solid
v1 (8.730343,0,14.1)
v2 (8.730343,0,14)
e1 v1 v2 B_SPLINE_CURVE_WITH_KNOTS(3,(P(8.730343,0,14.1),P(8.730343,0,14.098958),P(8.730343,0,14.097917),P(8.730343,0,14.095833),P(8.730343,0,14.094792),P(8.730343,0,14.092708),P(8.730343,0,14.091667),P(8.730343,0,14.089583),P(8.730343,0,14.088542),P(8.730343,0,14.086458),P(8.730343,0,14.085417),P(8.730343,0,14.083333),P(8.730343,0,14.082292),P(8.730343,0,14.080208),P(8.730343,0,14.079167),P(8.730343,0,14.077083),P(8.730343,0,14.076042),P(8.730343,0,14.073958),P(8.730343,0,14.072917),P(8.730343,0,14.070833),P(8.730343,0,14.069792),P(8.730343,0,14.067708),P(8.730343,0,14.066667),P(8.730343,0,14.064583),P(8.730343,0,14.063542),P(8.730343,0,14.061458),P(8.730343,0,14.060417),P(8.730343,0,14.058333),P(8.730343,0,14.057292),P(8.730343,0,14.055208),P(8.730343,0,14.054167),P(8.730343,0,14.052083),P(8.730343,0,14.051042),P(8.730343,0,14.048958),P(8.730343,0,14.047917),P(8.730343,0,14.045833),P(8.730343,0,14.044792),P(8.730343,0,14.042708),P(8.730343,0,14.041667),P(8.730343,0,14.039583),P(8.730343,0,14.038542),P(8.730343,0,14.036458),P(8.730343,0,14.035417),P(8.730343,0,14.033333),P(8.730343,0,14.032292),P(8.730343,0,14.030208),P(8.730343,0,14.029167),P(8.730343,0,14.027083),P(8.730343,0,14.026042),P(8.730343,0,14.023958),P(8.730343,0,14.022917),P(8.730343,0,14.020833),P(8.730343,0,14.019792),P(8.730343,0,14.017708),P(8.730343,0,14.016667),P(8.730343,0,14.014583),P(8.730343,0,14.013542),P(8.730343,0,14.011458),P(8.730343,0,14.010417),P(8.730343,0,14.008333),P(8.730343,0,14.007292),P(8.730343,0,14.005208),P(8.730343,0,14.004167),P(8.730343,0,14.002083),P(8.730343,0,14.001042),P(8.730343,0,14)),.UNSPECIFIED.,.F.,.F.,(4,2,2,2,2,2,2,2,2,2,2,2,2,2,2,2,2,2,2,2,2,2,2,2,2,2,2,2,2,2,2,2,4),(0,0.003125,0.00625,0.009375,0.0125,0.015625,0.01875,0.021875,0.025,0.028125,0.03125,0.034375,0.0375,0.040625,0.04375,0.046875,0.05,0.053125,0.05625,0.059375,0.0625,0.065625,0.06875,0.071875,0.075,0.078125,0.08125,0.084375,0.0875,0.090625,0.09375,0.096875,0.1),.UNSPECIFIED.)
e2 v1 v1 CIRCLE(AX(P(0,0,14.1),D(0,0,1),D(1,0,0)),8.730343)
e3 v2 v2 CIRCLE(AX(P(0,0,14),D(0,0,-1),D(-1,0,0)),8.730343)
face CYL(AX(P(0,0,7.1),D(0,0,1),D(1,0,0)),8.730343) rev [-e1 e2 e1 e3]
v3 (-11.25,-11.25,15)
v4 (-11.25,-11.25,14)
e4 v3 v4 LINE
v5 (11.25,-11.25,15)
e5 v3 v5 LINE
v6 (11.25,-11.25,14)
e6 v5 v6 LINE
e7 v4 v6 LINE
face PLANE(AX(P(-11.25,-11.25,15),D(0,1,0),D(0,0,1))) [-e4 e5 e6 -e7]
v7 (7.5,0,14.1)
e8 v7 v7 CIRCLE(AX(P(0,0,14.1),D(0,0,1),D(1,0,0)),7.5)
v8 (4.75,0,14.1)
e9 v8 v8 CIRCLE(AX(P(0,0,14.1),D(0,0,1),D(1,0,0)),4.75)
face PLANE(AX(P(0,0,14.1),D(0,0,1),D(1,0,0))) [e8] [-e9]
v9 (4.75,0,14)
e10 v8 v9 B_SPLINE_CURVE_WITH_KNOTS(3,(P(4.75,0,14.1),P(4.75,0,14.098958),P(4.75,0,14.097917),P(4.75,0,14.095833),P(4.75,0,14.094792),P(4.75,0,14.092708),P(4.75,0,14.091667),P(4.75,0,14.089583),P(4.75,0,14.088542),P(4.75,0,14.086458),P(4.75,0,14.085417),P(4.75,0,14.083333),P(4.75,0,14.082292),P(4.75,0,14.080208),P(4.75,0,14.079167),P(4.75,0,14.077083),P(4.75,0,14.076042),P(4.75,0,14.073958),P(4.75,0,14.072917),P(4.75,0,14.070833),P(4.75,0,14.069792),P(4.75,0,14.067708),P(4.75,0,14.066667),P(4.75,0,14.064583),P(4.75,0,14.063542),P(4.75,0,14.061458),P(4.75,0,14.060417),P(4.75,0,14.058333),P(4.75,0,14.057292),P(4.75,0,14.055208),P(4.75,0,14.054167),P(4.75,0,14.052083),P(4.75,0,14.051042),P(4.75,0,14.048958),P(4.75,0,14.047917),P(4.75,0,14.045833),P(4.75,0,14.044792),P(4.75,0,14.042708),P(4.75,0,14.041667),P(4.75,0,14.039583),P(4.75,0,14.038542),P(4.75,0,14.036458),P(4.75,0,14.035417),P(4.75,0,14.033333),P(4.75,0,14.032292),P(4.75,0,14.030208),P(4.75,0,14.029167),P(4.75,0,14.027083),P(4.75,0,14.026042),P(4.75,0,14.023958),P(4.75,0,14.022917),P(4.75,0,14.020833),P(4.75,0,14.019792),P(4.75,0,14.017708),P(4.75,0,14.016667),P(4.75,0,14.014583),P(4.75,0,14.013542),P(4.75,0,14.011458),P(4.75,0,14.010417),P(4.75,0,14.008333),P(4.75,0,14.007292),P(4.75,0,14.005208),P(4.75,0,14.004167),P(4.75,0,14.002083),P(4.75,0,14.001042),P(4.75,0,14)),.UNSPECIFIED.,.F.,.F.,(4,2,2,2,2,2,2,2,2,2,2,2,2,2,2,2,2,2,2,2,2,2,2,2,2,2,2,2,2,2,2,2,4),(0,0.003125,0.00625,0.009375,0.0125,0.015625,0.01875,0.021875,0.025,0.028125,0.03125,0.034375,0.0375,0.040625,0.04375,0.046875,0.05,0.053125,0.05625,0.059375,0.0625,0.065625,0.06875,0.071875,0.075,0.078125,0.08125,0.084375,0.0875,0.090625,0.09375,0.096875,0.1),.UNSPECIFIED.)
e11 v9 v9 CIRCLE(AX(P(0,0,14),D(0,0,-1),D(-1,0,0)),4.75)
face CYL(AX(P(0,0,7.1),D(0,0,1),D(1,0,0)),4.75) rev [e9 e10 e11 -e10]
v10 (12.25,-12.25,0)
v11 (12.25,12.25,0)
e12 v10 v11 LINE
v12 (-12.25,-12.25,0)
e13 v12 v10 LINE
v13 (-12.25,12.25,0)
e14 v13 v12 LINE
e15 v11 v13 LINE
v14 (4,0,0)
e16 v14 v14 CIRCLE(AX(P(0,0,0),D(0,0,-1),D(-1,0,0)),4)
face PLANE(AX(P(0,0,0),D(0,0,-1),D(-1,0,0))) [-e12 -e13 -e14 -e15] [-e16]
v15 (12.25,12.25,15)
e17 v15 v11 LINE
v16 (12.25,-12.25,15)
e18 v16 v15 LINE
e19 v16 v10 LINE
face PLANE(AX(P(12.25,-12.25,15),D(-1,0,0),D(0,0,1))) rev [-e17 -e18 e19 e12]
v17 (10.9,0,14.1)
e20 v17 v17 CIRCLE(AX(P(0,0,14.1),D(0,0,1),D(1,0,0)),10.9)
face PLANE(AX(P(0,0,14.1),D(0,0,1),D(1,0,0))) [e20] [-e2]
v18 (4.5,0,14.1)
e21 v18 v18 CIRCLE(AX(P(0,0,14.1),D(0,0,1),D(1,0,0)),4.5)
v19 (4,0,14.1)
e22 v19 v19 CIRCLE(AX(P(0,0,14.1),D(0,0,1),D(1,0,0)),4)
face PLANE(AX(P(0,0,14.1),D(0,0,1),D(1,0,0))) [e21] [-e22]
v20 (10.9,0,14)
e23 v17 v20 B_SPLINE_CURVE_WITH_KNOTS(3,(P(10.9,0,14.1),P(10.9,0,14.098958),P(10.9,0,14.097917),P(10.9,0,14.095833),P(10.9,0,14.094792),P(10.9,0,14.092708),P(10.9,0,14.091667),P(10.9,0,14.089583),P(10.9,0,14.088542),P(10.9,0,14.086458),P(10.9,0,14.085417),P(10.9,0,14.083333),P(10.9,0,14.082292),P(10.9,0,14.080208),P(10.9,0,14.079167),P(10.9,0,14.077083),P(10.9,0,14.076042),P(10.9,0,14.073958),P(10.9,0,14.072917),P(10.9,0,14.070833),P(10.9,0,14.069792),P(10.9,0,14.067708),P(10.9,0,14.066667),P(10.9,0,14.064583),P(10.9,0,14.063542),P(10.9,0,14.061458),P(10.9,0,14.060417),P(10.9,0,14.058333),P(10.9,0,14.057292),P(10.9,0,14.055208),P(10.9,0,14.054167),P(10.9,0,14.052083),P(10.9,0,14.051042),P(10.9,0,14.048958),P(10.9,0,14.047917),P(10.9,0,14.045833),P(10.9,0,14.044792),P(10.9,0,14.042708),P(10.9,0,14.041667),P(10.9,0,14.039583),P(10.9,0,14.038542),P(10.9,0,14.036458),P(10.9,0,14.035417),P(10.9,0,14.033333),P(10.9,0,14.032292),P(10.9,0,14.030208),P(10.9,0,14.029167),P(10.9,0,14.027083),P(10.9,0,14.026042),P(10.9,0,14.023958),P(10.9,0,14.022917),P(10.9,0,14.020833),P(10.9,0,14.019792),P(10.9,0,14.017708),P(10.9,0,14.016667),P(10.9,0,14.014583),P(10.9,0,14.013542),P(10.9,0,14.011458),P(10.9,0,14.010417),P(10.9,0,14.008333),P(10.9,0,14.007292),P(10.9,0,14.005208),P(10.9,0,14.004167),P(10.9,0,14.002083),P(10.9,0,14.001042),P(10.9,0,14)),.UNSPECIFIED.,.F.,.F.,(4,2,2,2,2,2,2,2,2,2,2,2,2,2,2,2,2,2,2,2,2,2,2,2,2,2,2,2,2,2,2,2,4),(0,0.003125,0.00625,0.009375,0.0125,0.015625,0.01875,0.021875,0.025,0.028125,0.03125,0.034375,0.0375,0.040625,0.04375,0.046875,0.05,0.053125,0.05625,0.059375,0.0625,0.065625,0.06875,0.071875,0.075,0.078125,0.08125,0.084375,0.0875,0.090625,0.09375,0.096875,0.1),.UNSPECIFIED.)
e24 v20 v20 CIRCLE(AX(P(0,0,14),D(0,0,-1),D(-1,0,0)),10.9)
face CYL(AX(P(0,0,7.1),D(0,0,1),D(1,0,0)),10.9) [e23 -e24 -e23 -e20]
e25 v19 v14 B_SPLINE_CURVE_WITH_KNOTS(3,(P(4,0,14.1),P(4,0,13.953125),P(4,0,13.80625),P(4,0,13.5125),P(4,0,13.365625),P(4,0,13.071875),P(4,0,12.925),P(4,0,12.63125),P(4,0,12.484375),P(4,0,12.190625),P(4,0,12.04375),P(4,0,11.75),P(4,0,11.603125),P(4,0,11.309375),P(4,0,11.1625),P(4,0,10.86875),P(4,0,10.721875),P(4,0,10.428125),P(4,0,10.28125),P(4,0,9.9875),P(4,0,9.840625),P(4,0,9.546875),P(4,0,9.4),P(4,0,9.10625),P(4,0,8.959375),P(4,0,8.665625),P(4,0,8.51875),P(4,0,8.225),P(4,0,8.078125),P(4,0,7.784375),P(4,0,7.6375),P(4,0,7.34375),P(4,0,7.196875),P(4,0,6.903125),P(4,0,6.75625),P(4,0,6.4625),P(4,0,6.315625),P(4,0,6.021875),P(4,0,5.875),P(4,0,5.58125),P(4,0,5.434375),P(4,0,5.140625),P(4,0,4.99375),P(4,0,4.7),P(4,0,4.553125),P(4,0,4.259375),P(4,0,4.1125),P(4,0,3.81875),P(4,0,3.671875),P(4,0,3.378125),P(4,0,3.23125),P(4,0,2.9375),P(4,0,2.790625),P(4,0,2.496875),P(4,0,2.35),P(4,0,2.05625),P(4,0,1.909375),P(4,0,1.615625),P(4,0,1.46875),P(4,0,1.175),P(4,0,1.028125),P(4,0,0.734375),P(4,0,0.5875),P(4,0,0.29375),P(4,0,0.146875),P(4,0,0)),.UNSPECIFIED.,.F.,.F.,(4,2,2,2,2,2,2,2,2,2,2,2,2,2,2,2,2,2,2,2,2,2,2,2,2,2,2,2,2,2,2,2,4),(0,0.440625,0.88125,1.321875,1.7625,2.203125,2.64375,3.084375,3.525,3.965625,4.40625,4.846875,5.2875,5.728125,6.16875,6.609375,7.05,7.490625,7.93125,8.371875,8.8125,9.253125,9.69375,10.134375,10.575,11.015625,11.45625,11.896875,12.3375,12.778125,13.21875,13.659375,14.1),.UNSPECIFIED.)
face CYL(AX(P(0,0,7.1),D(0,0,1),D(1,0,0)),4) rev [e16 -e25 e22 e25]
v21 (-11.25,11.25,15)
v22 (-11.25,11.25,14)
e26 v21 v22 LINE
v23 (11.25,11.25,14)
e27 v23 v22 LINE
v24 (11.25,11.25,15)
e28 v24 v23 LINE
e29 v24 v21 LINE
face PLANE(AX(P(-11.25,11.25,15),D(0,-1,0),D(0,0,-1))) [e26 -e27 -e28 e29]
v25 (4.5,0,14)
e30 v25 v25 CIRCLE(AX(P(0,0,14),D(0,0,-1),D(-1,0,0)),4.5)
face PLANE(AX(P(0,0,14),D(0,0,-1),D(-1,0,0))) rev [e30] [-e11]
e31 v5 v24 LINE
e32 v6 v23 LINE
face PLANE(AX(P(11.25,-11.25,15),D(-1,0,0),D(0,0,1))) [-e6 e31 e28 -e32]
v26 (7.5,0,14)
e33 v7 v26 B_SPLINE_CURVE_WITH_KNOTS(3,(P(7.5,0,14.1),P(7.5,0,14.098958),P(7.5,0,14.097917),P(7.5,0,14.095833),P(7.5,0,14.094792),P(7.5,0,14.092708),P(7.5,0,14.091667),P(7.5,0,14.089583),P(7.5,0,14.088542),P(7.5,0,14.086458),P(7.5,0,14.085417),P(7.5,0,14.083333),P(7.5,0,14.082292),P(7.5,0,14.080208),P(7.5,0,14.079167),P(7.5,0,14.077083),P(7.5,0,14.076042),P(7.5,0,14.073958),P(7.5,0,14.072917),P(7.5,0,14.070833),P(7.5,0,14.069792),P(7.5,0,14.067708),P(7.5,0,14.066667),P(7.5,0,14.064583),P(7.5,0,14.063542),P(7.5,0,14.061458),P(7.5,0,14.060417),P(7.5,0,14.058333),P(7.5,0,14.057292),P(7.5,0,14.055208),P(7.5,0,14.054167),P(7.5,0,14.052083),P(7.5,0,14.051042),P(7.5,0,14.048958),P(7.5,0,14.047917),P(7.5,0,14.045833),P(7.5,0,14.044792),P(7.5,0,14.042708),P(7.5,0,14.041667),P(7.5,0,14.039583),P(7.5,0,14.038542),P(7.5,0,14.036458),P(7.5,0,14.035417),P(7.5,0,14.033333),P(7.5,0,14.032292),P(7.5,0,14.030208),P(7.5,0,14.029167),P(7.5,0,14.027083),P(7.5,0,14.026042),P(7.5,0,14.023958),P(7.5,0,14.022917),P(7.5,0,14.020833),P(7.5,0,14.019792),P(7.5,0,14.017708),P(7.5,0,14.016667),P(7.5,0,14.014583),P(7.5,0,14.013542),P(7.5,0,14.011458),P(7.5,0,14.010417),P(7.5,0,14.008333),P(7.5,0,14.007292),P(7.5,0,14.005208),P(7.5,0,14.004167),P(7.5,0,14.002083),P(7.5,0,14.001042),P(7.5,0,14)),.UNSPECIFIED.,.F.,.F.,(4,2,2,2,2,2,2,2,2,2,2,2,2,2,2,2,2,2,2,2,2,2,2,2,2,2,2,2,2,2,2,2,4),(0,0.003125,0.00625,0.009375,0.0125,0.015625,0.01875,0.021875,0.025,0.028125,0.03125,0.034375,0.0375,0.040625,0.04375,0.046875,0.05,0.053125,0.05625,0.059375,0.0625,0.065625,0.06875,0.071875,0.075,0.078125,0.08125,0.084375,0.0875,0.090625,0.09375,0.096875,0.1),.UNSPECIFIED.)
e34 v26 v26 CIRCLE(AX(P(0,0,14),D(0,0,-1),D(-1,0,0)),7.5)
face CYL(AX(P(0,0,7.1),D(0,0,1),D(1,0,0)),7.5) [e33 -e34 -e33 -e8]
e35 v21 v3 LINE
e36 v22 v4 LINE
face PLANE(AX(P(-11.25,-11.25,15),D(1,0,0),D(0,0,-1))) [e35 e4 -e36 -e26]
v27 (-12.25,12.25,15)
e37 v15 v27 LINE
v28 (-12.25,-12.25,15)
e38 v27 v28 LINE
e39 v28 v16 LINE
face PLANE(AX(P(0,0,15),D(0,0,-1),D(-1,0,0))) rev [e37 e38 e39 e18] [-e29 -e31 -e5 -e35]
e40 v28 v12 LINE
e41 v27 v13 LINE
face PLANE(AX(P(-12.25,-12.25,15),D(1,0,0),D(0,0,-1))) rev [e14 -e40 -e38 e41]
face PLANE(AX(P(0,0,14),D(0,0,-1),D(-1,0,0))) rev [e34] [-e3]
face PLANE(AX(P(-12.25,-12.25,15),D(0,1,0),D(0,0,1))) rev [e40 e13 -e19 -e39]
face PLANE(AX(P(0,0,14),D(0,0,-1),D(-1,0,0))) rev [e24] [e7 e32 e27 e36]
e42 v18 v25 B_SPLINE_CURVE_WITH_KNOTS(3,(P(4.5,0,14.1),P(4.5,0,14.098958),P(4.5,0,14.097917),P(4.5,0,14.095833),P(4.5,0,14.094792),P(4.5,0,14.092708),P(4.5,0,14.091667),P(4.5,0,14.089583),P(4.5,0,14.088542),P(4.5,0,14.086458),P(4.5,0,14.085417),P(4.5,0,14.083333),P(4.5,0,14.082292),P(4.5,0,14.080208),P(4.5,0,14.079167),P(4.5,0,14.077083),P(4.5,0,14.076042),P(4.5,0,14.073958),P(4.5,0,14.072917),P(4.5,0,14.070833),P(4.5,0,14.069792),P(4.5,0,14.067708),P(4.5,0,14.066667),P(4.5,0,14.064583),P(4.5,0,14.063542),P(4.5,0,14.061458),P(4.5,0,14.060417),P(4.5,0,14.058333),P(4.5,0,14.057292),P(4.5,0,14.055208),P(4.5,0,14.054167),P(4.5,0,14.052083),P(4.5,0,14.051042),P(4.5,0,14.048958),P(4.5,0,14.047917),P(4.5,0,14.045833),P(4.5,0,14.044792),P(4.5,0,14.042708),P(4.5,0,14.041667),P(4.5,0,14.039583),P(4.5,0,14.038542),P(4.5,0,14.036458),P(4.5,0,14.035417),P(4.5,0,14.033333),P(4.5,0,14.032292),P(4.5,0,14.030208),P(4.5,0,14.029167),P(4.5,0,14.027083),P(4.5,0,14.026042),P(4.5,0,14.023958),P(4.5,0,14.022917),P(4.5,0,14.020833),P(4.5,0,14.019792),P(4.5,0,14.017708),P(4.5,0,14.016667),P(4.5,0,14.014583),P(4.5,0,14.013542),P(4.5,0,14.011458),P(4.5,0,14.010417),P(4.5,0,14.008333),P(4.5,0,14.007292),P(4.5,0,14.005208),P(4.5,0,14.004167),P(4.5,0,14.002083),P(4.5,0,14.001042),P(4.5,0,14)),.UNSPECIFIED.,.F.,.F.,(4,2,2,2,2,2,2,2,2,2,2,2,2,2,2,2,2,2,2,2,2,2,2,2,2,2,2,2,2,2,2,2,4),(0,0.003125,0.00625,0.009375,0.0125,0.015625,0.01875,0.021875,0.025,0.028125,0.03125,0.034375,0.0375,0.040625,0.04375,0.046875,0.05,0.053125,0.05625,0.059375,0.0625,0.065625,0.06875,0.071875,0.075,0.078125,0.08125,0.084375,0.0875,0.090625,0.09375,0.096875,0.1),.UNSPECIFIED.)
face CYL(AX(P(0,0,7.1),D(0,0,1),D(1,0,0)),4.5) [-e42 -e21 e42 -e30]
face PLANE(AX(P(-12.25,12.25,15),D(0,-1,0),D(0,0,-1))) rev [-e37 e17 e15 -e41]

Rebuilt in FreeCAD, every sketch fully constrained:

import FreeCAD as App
import Part
import Sketcher
Q = App.Units.Quantity

doc = App.newDocument("Part")
body = doc.addObject("PartDesign::Body", "Body")

# Sketch on XY plane
sketch1 = body.newObject("Sketcher::SketchObject", "Sketch")
sketch1.AttachmentSupport = (doc.getObject("XY_Plane"), [""])
sketch1.MapMode = "FlatFace"
sketch1.addGeometry(Part.LineSegment(App.Vector(-12.25, 12.25, 0), App.Vector(-12.25, -12.25, 0)), False)
sketch1.addGeometry(Part.LineSegment(App.Vector(-12.25, -12.25, 0), App.Vector(12.25, -12.25, 0)), False)
sketch1.addGeometry(Part.LineSegment(App.Vector(12.25, -12.25, 0), App.Vector(12.25, 12.25, 0)), False)
sketch1.addGeometry(Part.LineSegment(App.Vector(12.25, 12.25, 0), App.Vector(-12.25, 12.25, 0)), False)
sketch1.addGeometry(Part.LineSegment(App.Vector(11.25, -11.25, 0), App.Vector(-11.25, -11.25, 0)), False)
sketch1.addGeometry(Part.LineSegment(App.Vector(-11.25, -11.25, 0), App.Vector(-11.25, 11.25, 0)), False)
sketch1.addGeometry(Part.LineSegment(App.Vector(-11.25, 11.25, 0), App.Vector(11.25, 11.25, 0)), False)
sketch1.addGeometry(Part.LineSegment(App.Vector(11.25, 11.25, 0), App.Vector(11.25, -11.25, 0)), False)
sketch1.addConstraint(Sketcher.Constraint("Coincident", 0, 2, 1, 1))
sketch1.addConstraint(Sketcher.Constraint("Coincident", 1, 2, 2, 1))
sketch1.addConstraint(Sketcher.Constraint("Coincident", 2, 2, 3, 1))
sketch1.addConstraint(Sketcher.Constraint("Coincident", 3, 2, 0, 1))
sketch1.addConstraint(Sketcher.Constraint("Coincident", 4, 2, 5, 1))
sketch1.addConstraint(Sketcher.Constraint("Coincident", 5, 2, 6, 1))
sketch1.addConstraint(Sketcher.Constraint("Coincident", 6, 2, 7, 1))
sketch1.addConstraint(Sketcher.Constraint("Coincident", 7, 2, 4, 1))
sketch1.addConstraint(Sketcher.Constraint("Vertical", 0))
sketch1.addConstraint(Sketcher.Constraint("Horizontal", 1))
sketch1.addConstraint(Sketcher.Constraint("Vertical", 2))
sketch1.addConstraint(Sketcher.Constraint("Horizontal", 3))
sketch1.addConstraint(Sketcher.Constraint("Horizontal", 4))
sketch1.addConstraint(Sketcher.Constraint("Vertical", 5))
sketch1.addConstraint(Sketcher.Constraint("Horizontal", 6))
sketch1.addConstraint(Sketcher.Constraint("Vertical", 7))
sketch1.addConstraint(Sketcher.Constraint("Symmetric", 0, 2, 2, 2, -1, 1))
sketch1.addConstraint(Sketcher.Constraint("Symmetric", 4, 2, 6, 2, -1, 1))
sketch1.addConstraint(Sketcher.Constraint("Equal", 3, 0))
sketch1.addConstraint(Sketcher.Constraint("Equal", 6, 5))
sketch1.addConstraint(Sketcher.Constraint("DistanceX", 1, 1, 1, 2, Q("24.5 mm")))
sketch1.addConstraint(Sketcher.Constraint("DistanceX", 4, 2, 4, 1, Q("22.5 mm")))
pad1 = body.newObject("PartDesign::Pad", "Pad")
pad1.Profile = sketch1
pad1.Length = 15

# Sketch on XY plane
sketch2 = body.newObject("Sketcher::SketchObject", "Sketch001")
sketch2.AttachmentSupport = (doc.getObject("XY_Plane"), [""])
sketch2.MapMode = "FlatFace"
sketch2.addGeometry(Part.LineSegment(App.Vector(-11.25, 11.25, 0), App.Vector(-11.25, -11.25, 0)), False)
sketch2.addGeometry(Part.LineSegment(App.Vector(-11.25, -11.25, 0), App.Vector(11.25, -11.25, 0)), False)
sketch2.addGeometry(Part.LineSegment(App.Vector(11.25, -11.25, 0), App.Vector(11.25, 11.25, 0)), False)
sketch2.addGeometry(Part.LineSegment(App.Vector(11.25, 11.25, 0), App.Vector(-11.25, 11.25, 0)), False)
sketch2.addConstraint(Sketcher.Constraint("Coincident", 0, 2, 1, 1))
sketch2.addConstraint(Sketcher.Constraint("Coincident", 1, 2, 2, 1))
sketch2.addConstraint(Sketcher.Constraint("Coincident", 2, 2, 3, 1))
sketch2.addConstraint(Sketcher.Constraint("Coincident", 3, 2, 0, 1))
sketch2.addConstraint(Sketcher.Constraint("Vertical", 0))
sketch2.addConstraint(Sketcher.Constraint("Horizontal", 1))
sketch2.addConstraint(Sketcher.Constraint("Vertical", 2))
sketch2.addConstraint(Sketcher.Constraint("Horizontal", 3))
sketch2.addConstraint(Sketcher.Constraint("Symmetric", 0, 2, 2, 2, -1, 1))
sketch2.addConstraint(Sketcher.Constraint("Equal", 3, 0))
sketch2.addConstraint(Sketcher.Constraint("DistanceX", 1, 1, 1, 2, Q("22.5 mm")))
pad2 = body.newObject("PartDesign::Pad", "Pad001")
pad2.Profile = sketch2
pad2.Length = 14

# Sketch on XY plane
sketch3 = body.newObject("Sketcher::SketchObject", "Sketch002")
sketch3.AttachmentSupport = (doc.getObject("XY_Plane"), [""])
sketch3.MapMode = "FlatFace"
sketch3.AttachmentOffset = App.Placement(App.Vector(0, 0, 14), App.Rotation())
sketch3.addGeometry(Part.Circle(App.Vector(0, 0, 0), App.Vector(0, 0, 1), 10.9), False)
sketch3.addGeometry(Part.Circle(App.Vector(0, 0, 0), App.Vector(0, 0, 1), 8.730343), False)
sketch3.addGeometry(Part.Circle(App.Vector(0, 0, 0), App.Vector(0, 0, 1), 7.5), False)
sketch3.addGeometry(Part.Circle(App.Vector(0, 0, 0), App.Vector(0, 0, 1), 4.75), False)
sketch3.addGeometry(Part.Circle(App.Vector(0, 0, 0), App.Vector(0, 0, 1), 4.5), False)
sketch3.addGeometry(Part.Circle(App.Vector(0, 0, 0), App.Vector(0, 0, 1), 4), False)
sketch3.addConstraint(Sketcher.Constraint("Coincident", 0, 3, -1, 1))
sketch3.addConstraint(Sketcher.Constraint("Coincident", 1, 3, -1, 1))
sketch3.addConstraint(Sketcher.Constraint("Coincident", 2, 3, -1, 1))
sketch3.addConstraint(Sketcher.Constraint("Coincident", 3, 3, -1, 1))
sketch3.addConstraint(Sketcher.Constraint("Coincident", 4, 3, -1, 1))
sketch3.addConstraint(Sketcher.Constraint("Coincident", 5, 3, -1, 1))
sketch3.addConstraint(Sketcher.Constraint("Diameter", 2, Q("15 mm")))
sketch3.addConstraint(Sketcher.Constraint("Diameter", 4, Q("9 mm")))
sketch3.addConstraint(Sketcher.Constraint("Diameter", 5, Q("8 mm")))
sketch3.addConstraint(Sketcher.Constraint("Diameter", 0, Q("21.8 mm")))
sketch3.addConstraint(Sketcher.Constraint("Diameter", 3, Q("9.5 mm")))
sketch3.addConstraint(Sketcher.Constraint("Diameter", 1, Q("17.460686 mm")))
pad3 = body.newObject("PartDesign::Pad", "Pad002")
pad3.Profile = sketch3
pad3.Type = "TwoLengths"
pad3.Length = 0.1
pad3.Length2 = 6.9

# Sketch on XY plane
sketch4 = body.newObject("Sketcher::SketchObject", "Sketch003")
sketch4.AttachmentSupport = (doc.getObject("XY_Plane"), [""])
sketch4.MapMode = "FlatFace"
sketch4.AttachmentOffset = App.Placement(App.Vector(0, 0, -1), App.Rotation())
sketch4.addGeometry(Part.Circle(App.Vector(0, 0, 0), App.Vector(0, 0, 1), 4), False)
sketch4.addConstraint(Sketcher.Constraint("Coincident", 0, 3, -1, 1))
sketch4.addConstraint(Sketcher.Constraint("Diameter", 0, Q("8 mm")))
pocket1 = body.newObject("PartDesign::Pocket", "Pocket")
pocket1.Profile = sketch4
pocket1.Length = 15
pocket1.Reversed = True

doc.recompute()
